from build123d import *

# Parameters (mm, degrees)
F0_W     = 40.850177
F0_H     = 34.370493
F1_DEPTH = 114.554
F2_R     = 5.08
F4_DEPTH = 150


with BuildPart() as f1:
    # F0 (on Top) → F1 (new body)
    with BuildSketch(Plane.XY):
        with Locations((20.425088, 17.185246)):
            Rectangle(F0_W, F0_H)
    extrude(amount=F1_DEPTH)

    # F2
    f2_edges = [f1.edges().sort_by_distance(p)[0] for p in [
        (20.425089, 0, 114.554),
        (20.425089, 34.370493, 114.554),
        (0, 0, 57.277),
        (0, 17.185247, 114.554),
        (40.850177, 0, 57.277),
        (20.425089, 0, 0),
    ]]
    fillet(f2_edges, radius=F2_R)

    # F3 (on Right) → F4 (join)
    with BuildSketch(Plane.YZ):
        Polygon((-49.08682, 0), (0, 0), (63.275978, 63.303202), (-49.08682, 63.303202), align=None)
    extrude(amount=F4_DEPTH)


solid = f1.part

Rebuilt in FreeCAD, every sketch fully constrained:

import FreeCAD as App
import Part
import Sketcher

V = App.Vector
Q = App.Units.Quantity


def edges_at(feature, points):
    """Names of the edges that pass closest to the given points."""
    edges = feature.Shape.Edges
    near = lambda p: min(range(len(edges)), key=lambda i: edges[i].distToShape(Part.Vertex(*p))[0])
    return sorted({f"Edge{near(p) + 1}" for p in points})

doc = App.newDocument("Part")
params = doc.addObject("Spreadsheet::Sheet", "Params")
for row, (alias, value) in enumerate([
    ("pad1_length", "4.51 in"),
    ("fillet_radius", "0.2 in"),
    ("pad2_length", "150 mm"),
], start=1):
    params.set(f"A{row}", alias)
    params.set(f"B{row}", "=" + value)
    params.setAlias(f"B{row}", alias)

body = doc.addObject("PartDesign::Body", "Body")

# Sketch on XY plane
sketch1 = body.newObject("Sketcher::SketchObject", "Sketch")
sketch1.AttachmentSupport = (doc.getObject("XY_Plane"), [""])
sketch1.MapMode = "FlatFace"
sketch1.addGeometry(Part.LineSegment(V(0, 34, 0), V(0, 0, 0)), False)
sketch1.addGeometry(Part.LineSegment(V(0, 0, 0), V(41, 0, 0)), False)
sketch1.addGeometry(Part.LineSegment(V(41, 0, 0), V(41, 34, 0)), False)
sketch1.addGeometry(Part.LineSegment(V(41, 34, 0), V(0, 34, 0)), False)
sketch1.addConstraint(Sketcher.Constraint("Coincident", 0, 2, 1, 1))
sketch1.addConstraint(Sketcher.Constraint("Coincident", 1, 2, 2, 1))
sketch1.addConstraint(Sketcher.Constraint("Coincident", 2, 2, 3, 1))
sketch1.addConstraint(Sketcher.Constraint("Coincident", 3, 2, 0, 1))
sketch1.addConstraint(Sketcher.Constraint("Vertical", 0))
sketch1.addConstraint(Sketcher.Constraint("Horizontal", 1))
sketch1.addConstraint(Sketcher.Constraint("Vertical", 2))
sketch1.addConstraint(Sketcher.Constraint("Horizontal", 3))
sketch1.addConstraint(Sketcher.Constraint("Coincident", 0, 2, -1, 1))
sketch1.addConstraint(Sketcher.Constraint("DistanceX", 1, 1, 1, 2, Q("40.850177 mm")))
sketch1.addConstraint(Sketcher.Constraint("DistanceY", 0, 2, 0, 1, Q("34.370493 mm")))
pad1 = body.newObject("PartDesign::Pad", "Pad")
pad1.Profile = sketch1
pad1.setExpression("Length", "Params.pad1_length")
doc.recompute()

fillet = body.newObject("PartDesign::Fillet", "Fillet")
fillet.Base = (pad1, edges_at(pad1, [
    (20.425, 0, 114.554),
    (20.425, 34.37, 114.554),
    (0, 0, 57.277),
    (0, 17.185, 114.554),
    (40.85, 0, 57.277),
    (20.425, 0, 0),
]))
fillet.setExpression("Radius", "Params.fillet_radius")

# Sketch on YZ plane
sketch2 = body.newObject("Sketcher::SketchObject", "Sketch001")
sketch2.AttachmentSupport = (doc.getObject("YZ_Plane"), [""])
sketch2.MapMode = "FlatFace"
sketch2.addGeometry(Part.LineSegment(V(-49, 0, 0), V(0, 0, 0)), False)
sketch2.addGeometry(Part.LineSegment(V(0, 0, 0), V(63, 63, 0)), False)
sketch2.addGeometry(Part.LineSegment(V(63, 63, 0), V(-49, 63, 0)), False)
sketch2.addGeometry(Part.LineSegment(V(-49, 63, 0), V(-49, 0, 0)), False)
sketch2.addConstraint(Sketcher.Constraint("Coincident", 0, 2, 1, 1))
sketch2.addConstraint(Sketcher.Constraint("Coincident", 1, 2, 2, 1))
sketch2.addConstraint(Sketcher.Constraint("Coincident", 2, 2, 3, 1))
sketch2.addConstraint(Sketcher.Constraint("Coincident", 3, 2, 0, 1))
sketch2.addConstraint(Sketcher.Constraint("Horizontal", 0))
sketch2.addConstraint(Sketcher.Constraint("Horizontal", 2))
sketch2.addConstraint(Sketcher.Constraint("Vertical", 3))
sketch2.addConstraint(Sketcher.Constraint("Coincident", 0, 2, -1, 1))
sketch2.addConstraint(Sketcher.Constraint("DistanceX", 2, 2, 2, 1, Q("112.362798 mm")))
sketch2.addConstraint(Sketcher.Constraint("Distance", 1, Q("89.504999 mm")))
sketch2.addConstraint(Sketcher.Constraint("DistanceX", 0, 1, 0, 2, Q("49.08682 mm")))
pad2 = body.newObject("PartDesign::Pad", "Pad001")
pad2.Profile = sketch2
pad2.setExpression("Length", "Params.pad2_length")

doc.recompute()
